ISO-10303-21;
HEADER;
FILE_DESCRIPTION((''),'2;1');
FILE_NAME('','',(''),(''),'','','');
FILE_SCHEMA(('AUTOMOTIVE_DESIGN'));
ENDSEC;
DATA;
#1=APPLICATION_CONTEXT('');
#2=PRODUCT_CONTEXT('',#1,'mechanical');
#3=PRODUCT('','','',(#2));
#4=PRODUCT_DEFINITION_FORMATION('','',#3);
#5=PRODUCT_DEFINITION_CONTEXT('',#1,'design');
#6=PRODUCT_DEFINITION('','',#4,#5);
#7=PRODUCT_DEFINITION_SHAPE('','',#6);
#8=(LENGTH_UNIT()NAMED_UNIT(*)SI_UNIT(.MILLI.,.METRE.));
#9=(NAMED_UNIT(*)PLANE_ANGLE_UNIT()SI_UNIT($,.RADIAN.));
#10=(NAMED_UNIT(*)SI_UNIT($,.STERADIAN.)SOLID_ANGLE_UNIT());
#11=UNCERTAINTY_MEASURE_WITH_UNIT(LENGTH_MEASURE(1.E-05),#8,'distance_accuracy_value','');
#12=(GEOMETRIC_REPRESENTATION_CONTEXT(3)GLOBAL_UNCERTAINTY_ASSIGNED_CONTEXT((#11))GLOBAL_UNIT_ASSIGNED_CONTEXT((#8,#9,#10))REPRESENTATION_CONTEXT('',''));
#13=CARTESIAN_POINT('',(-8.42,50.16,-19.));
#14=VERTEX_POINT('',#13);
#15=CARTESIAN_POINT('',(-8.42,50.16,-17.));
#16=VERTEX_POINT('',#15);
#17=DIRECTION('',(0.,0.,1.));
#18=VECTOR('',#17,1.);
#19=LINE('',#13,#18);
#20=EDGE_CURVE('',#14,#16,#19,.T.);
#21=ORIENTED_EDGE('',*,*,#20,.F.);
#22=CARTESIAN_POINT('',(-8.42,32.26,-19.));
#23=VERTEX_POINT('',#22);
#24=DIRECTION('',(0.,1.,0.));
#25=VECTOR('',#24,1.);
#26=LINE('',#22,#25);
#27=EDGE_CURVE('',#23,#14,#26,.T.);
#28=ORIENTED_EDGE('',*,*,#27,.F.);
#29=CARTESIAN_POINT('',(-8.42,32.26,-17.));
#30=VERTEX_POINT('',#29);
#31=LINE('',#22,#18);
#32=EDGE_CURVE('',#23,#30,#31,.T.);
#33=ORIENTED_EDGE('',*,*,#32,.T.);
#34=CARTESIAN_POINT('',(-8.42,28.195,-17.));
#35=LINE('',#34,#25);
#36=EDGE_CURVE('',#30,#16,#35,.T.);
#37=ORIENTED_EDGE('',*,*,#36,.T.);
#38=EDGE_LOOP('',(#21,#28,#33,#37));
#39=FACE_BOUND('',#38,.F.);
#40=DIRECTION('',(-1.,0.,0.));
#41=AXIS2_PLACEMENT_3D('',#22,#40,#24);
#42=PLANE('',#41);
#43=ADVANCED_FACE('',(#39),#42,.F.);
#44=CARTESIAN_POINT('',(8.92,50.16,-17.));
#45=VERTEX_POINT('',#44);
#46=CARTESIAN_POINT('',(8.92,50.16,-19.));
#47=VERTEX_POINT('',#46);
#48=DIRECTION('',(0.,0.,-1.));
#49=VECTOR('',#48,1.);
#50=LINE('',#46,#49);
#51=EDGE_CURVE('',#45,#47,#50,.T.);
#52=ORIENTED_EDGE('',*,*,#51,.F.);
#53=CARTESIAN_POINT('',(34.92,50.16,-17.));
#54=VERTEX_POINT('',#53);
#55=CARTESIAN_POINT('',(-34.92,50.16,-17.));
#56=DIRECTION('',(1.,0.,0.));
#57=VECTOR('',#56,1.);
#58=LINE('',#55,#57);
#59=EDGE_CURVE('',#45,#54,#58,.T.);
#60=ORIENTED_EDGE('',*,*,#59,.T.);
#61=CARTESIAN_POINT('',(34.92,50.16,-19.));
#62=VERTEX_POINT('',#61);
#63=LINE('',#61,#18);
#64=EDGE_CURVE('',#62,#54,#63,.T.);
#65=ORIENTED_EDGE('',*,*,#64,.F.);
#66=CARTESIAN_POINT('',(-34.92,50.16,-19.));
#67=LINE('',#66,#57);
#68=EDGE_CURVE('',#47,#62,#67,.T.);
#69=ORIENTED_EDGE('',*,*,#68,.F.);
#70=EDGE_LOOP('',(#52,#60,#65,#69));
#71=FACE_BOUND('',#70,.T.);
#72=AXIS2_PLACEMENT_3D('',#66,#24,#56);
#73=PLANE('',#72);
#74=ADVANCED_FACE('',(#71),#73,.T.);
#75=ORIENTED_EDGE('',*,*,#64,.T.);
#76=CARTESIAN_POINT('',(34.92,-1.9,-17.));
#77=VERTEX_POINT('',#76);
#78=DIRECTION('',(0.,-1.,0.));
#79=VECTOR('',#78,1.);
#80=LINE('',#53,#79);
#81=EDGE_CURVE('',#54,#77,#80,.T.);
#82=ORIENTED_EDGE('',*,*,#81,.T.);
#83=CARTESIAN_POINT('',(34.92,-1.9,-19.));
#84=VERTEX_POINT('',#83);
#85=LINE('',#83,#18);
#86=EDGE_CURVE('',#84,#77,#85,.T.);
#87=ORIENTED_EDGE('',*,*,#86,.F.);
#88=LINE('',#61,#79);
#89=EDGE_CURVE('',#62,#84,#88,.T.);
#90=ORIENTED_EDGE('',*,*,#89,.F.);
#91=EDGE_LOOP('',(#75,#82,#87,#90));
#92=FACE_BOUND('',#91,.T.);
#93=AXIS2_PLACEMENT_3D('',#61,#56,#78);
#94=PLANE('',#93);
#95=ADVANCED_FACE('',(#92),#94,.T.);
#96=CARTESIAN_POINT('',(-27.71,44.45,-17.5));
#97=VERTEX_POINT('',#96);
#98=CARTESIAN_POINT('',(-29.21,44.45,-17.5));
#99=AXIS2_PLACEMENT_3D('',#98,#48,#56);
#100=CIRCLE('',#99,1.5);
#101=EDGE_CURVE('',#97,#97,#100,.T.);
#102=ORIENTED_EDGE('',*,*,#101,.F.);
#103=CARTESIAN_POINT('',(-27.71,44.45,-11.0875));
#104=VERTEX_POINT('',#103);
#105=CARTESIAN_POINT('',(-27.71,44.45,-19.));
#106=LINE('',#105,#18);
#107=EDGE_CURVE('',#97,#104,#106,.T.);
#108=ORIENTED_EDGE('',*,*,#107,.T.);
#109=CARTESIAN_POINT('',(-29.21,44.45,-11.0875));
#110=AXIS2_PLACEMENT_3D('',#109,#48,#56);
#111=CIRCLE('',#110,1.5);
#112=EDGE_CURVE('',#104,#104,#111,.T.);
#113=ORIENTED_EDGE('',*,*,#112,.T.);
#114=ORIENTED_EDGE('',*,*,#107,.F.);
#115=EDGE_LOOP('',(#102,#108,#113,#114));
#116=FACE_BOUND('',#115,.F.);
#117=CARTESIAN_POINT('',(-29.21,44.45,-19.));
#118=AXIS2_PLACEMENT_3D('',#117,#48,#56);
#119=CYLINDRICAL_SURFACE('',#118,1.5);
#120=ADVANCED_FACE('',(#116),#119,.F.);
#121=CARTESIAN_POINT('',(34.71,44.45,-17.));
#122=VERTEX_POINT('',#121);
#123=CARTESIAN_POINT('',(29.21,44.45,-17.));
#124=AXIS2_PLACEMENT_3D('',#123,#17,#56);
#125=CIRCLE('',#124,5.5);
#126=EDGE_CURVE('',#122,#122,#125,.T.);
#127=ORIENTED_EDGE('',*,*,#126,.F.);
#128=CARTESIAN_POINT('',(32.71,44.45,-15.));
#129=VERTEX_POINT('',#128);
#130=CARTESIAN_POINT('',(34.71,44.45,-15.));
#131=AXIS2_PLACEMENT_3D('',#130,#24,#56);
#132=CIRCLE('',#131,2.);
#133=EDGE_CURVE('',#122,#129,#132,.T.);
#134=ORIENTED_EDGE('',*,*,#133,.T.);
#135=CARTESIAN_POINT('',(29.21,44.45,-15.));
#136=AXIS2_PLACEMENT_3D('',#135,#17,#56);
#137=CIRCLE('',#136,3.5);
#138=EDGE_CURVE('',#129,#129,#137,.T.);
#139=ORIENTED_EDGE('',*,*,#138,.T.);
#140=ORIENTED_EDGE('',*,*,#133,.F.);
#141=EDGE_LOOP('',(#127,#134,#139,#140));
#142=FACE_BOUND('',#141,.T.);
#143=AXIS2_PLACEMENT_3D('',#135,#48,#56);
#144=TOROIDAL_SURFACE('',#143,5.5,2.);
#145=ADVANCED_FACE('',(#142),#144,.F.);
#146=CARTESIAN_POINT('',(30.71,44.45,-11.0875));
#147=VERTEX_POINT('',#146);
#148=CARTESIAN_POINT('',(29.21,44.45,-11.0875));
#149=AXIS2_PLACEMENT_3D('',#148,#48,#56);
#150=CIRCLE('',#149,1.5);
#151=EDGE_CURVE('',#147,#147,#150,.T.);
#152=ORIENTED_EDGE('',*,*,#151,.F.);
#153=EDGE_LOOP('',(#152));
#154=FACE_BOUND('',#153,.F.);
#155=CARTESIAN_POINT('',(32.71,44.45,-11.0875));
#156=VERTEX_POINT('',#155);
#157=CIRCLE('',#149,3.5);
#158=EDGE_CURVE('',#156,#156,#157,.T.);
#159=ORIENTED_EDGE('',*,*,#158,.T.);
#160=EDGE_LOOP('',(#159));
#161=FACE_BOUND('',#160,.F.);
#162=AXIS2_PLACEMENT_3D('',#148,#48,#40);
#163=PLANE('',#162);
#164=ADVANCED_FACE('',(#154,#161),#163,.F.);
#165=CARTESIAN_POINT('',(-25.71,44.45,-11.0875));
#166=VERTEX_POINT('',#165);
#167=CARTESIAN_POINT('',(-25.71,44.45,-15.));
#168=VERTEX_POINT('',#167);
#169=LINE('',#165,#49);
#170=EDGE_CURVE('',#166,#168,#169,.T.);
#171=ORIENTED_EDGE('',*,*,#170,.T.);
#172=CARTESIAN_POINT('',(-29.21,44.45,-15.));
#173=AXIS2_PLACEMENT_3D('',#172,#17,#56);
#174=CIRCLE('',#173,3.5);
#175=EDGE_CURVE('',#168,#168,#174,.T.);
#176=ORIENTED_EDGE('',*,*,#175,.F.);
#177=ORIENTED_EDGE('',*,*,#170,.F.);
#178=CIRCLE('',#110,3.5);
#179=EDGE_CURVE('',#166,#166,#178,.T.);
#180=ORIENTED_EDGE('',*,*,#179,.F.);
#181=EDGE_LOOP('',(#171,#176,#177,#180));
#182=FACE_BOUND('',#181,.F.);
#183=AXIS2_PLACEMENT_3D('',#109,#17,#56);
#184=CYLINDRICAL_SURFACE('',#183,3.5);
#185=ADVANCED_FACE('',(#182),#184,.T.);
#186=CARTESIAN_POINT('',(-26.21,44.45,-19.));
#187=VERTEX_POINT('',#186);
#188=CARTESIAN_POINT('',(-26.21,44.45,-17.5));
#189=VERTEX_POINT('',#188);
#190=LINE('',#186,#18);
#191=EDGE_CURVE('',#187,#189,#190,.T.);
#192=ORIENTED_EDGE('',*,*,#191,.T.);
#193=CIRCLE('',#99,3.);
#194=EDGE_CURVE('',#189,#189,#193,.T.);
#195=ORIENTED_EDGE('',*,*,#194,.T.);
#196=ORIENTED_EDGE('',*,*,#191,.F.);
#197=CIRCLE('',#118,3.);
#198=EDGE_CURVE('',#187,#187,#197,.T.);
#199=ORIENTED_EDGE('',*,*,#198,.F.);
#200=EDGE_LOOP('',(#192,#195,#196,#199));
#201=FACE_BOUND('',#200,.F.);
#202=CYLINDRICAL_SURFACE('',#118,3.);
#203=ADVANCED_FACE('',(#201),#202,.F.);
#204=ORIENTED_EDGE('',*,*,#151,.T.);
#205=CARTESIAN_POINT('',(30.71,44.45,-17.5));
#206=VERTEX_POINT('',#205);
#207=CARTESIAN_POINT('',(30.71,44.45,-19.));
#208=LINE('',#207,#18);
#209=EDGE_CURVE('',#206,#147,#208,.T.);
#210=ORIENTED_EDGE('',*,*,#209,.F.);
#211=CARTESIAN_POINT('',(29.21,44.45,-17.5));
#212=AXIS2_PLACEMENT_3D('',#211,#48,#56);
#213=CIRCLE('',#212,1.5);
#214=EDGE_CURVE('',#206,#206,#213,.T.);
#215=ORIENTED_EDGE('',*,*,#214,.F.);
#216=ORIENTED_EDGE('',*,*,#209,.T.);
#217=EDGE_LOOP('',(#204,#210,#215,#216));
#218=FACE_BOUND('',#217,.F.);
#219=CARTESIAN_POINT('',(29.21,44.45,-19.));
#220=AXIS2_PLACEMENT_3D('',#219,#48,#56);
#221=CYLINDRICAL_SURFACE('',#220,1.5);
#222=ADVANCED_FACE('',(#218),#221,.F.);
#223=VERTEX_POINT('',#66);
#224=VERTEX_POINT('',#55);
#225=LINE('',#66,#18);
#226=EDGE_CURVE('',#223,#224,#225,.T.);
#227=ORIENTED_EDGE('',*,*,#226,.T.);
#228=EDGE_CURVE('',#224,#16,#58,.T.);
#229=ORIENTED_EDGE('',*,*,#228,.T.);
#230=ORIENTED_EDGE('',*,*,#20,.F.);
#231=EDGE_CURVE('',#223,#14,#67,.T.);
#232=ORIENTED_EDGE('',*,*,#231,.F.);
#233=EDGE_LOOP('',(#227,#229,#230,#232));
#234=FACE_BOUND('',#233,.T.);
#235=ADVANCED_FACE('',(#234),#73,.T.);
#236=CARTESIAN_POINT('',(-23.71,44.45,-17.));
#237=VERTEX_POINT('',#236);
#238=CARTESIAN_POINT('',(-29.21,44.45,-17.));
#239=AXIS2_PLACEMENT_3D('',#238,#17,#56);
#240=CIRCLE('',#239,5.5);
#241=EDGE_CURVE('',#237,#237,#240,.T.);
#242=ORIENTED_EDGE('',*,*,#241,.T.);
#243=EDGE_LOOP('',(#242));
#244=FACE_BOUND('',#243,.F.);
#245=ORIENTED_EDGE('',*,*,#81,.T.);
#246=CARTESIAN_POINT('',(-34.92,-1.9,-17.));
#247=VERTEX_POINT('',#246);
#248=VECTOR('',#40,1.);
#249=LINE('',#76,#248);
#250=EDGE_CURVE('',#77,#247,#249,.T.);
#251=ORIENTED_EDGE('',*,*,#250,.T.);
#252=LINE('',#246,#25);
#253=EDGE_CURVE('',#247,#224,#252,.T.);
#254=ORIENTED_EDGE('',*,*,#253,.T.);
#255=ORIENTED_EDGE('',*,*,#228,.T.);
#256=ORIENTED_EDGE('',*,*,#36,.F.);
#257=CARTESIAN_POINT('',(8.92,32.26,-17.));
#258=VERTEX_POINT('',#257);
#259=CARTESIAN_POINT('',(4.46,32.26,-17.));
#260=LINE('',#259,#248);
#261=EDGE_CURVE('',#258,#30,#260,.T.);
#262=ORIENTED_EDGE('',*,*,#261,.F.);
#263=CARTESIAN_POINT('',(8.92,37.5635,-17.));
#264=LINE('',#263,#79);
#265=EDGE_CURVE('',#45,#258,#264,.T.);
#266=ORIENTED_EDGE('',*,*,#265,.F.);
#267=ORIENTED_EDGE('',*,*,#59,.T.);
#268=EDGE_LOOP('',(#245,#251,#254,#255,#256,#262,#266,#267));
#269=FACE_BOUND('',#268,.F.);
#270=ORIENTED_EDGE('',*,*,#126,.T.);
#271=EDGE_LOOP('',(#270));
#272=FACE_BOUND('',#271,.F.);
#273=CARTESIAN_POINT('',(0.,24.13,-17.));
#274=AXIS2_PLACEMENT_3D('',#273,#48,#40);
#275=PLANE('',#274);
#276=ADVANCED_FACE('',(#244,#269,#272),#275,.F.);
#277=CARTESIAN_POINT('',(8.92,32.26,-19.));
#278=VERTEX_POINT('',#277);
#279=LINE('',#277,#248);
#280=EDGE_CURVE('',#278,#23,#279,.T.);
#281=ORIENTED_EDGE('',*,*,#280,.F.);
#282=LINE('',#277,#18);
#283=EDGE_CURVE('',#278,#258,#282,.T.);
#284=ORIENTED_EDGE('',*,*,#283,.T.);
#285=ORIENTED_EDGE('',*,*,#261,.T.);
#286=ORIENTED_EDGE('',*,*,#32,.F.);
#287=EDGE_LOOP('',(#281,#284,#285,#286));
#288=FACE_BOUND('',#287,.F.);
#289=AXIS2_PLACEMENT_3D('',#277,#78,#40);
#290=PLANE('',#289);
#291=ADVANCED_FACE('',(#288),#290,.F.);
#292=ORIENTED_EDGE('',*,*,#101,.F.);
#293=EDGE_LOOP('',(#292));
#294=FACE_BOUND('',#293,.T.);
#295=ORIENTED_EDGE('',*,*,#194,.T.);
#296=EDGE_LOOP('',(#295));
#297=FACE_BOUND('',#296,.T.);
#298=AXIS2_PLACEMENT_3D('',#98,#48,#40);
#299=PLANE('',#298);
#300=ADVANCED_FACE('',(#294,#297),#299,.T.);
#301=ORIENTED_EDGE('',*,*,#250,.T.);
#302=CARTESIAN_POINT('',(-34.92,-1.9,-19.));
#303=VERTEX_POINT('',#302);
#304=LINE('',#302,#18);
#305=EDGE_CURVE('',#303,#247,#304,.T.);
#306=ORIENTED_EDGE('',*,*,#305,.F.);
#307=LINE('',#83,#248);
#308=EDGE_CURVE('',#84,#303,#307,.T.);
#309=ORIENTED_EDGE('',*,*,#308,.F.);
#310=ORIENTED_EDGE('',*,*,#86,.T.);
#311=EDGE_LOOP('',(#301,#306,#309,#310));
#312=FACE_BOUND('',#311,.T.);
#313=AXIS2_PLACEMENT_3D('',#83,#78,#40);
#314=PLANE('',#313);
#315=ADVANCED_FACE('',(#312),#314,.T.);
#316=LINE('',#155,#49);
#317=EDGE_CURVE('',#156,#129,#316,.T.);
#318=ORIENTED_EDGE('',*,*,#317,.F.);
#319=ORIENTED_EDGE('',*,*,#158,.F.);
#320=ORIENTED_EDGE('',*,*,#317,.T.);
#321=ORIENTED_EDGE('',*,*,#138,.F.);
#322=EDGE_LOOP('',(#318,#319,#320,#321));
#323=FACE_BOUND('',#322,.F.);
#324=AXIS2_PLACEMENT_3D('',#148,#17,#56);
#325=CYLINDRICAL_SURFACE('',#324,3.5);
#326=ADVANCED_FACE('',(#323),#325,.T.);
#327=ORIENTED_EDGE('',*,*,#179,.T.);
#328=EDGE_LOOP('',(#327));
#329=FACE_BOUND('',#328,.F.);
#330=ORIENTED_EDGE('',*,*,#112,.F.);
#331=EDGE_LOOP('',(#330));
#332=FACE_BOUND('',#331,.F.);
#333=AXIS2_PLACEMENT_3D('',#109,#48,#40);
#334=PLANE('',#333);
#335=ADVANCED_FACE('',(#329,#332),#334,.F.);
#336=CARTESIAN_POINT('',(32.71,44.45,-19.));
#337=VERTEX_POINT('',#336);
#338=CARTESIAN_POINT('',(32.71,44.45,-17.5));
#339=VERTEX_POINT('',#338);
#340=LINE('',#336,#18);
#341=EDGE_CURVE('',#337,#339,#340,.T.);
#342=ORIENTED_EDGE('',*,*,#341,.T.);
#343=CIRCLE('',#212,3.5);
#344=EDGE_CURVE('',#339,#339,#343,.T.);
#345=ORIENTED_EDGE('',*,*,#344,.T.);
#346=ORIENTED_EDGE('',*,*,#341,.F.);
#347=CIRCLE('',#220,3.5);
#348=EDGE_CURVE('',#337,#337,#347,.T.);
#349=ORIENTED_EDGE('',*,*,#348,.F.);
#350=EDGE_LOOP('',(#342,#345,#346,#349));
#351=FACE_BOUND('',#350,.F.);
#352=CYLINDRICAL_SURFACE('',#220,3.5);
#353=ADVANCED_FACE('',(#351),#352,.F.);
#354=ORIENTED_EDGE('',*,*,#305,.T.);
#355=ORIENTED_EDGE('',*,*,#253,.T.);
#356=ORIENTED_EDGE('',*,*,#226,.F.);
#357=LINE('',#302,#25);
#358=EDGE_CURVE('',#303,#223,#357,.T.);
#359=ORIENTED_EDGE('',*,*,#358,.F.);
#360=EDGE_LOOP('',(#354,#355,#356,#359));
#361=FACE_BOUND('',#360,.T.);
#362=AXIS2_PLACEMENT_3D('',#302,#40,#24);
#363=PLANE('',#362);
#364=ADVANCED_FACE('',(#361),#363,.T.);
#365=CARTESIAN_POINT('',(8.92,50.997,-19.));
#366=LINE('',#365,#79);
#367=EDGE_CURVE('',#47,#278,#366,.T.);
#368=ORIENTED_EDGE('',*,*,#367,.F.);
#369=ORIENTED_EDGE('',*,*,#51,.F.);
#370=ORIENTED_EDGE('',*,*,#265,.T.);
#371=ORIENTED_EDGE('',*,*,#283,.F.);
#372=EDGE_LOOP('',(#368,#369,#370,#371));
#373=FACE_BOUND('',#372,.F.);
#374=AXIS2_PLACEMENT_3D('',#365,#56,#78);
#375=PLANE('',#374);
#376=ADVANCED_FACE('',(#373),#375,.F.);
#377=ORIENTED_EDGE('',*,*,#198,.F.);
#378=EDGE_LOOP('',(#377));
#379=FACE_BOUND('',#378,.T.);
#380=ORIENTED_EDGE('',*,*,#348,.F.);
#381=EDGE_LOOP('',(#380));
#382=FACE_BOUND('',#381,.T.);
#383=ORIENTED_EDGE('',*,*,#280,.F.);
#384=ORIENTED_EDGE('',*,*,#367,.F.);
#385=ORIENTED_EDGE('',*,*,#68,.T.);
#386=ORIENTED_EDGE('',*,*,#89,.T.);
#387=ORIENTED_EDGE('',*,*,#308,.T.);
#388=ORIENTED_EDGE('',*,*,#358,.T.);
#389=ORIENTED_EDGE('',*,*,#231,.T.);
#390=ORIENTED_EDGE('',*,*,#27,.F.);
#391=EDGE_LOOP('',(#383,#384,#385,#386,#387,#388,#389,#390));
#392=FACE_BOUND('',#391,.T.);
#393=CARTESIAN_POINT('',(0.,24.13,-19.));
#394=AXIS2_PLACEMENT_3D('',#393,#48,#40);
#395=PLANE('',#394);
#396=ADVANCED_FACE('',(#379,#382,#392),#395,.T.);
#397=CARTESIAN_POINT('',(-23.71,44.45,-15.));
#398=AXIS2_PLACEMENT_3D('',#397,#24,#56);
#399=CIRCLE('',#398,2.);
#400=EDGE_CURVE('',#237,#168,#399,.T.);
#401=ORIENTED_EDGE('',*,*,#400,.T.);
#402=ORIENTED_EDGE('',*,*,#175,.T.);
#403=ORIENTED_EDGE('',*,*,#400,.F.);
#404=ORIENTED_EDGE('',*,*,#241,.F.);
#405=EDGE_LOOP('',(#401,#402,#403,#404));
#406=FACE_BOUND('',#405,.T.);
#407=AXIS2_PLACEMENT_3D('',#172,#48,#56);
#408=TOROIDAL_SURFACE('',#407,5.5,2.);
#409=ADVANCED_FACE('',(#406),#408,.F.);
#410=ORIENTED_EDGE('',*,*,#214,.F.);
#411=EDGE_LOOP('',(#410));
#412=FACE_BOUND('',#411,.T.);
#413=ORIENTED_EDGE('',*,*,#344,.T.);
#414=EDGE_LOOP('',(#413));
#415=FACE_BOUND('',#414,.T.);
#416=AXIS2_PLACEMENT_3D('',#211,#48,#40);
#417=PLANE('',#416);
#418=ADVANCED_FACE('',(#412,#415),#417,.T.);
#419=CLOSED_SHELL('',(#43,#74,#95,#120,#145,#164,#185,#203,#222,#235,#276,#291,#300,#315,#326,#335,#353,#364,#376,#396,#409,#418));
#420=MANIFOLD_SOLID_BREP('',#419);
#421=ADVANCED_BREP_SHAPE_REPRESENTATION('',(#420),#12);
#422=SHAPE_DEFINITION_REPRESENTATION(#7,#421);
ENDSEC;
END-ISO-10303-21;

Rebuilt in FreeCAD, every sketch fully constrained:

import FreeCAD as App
import Part
import Sketcher

V = App.Vector
Q = App.Units.Quantity


def edges_at(feature, points):
    """Names of the edges that pass closest to the given points."""
    edges = feature.Shape.Edges
    near = lambda p: min(range(len(edges)), key=lambda i: edges[i].distToShape(Part.Vertex(*p))[0])
    return sorted({f"Edge{near(p) + 1}" for p in points})


def add_polygon(sketch, points):
    """Adds a closed chain of lines whose ends are joined by coincident constraints."""
    first, n = sketch.GeometryCount, len(points)
    for a, b in zip(points, points[1:] + points[:1]):
        sketch.addGeometry(Part.LineSegment(App.Vector(*a, 0), App.Vector(*b, 0)), False)
    for i in range(n):
        sketch.addConstraint(Sketcher.Constraint("Coincident", first + i, 2, first + (i + 1) % n, 1))

doc = App.newDocument("Part")
body = doc.addObject("PartDesign::Body", "Body")

sketch1 = body.newObject("Sketcher::SketchObject", "Sketch")
sketch1.AttachmentSupport = (doc.getObject("XY_Plane"), [""])
sketch1.MapMode = "FlatFace"
sketch1.AttachmentOffset = App.Placement(V(0, 0, -19), App.Rotation())
add_polygon(sketch1, [(-34.92, -1.9), (-34.92, 50.16), (34.92, 50.16), (34.92, -1.9)])
sketch1.addConstraint([
    Sketcher.Constraint("Vertical", 0),
    Sketcher.Constraint("Horizontal", 1),
    Sketcher.Constraint("Vertical", 2),
    Sketcher.Constraint("Horizontal", 3),
    Sketcher.Constraint("DistanceX", 1, 1, 1, 2, Q("69.84 mm")),
    Sketcher.Constraint("DistanceY", 0, 1, 0, 2, Q("52.06 mm")),
    Sketcher.Constraint("DistanceY", 2, 2, -1, 1, Q("1.9 mm")),
    Sketcher.Constraint("DistanceX", 0, 2, -1, 1, Q("34.92 mm")),
])
pad1 = body.newObject("PartDesign::Pad", "Pad")
pad1.Profile = sketch1
pad1.Length = 2

sketch2 = body.newObject("Sketcher::SketchObject", "Sketch001")
sketch2.AttachmentSupport = (doc.getObject("XY_Plane"), [""])
sketch2.MapMode = "FlatFace"
sketch2.AttachmentOffset = App.Placement(V(0, 0, -11.0875), App.Rotation())
sketch2.addGeometry([
    Part.Circle(V(-29.21, 44.45, 0), V(0, 0, 1), 3.5),
    Part.Circle(V(29.21, 44.45, 0), V(0, 0, 1), 3.5),
], False)
sketch2.addConstraint([
    Sketcher.Constraint("Equal", 0, 1),
    Sketcher.Constraint("Symmetric", 0, 3, 1, 3, -2),
    Sketcher.Constraint("Diameter", 0, Q("7 mm")),
    Sketcher.Constraint("DistanceX", 0, 3, -1, 1, Q("29.21 mm")),
    Sketcher.Constraint("DistanceY", -1, 1, 0, 3, Q("44.45 mm")),
])
pad2 = body.newObject("PartDesign::Pad", "Pad001")
pad2.Profile = sketch2
pad2.Type = "UpToFirst"
pad2.Reversed = True

sketch3 = body.newObject("Sketcher::SketchObject", "Sketch002")
sketch3.AttachmentSupport = (doc.getObject("XY_Plane"), [""])
sketch3.MapMode = "FlatFace"
sketch3.AttachmentOffset = App.Placement(V(0, 0, -19), App.Rotation())
sketch3.addGeometry([
    Part.Circle(V(-29.21, 44.45, 0), V(0, 0, 1), 1.5),
    Part.Circle(V(29.21, 44.45, 0), V(0, 0, 1), 1.5),
], False)
sketch3.addConstraint([
    Sketcher.Constraint("Equal", 0, 1),
    Sketcher.Constraint("Symmetric", 0, 3, 1, 3, -2),
    Sketcher.Constraint("Diameter", 0, Q("3 mm")),
    Sketcher.Constraint("DistanceX", 0, 3, -1, 1, Q("29.21 mm")),
    Sketcher.Constraint("DistanceY", -1, 1, 0, 3, Q("44.45 mm")),
])
pocket1 = body.newObject("PartDesign::Pocket", "Pocket")
pocket1.Profile = sketch3
pocket1.Length = 7.9125
pocket1.Reversed = True

sketch4 = body.newObject("Sketcher::SketchObject", "Sketch003")
sketch4.AttachmentSupport = (doc.getObject("XY_Plane"), [""])
sketch4.MapMode = "FlatFace"
sketch4.AttachmentOffset = App.Placement(V(0, 0, -19), App.Rotation())
sketch4.addGeometry([
    Part.Circle(V(-29.21, 44.45, 0), V(0, 0, 1), 3),
    Part.Circle(V(29.21, 44.45, 0), V(0, 0, 1), 3.5),
], False)
sketch4.addConstraint([
    Sketcher.Constraint("Symmetric", 0, 3, 1, 3, -2),
    Sketcher.Constraint("Diameter", 0, Q("6 mm")),
    Sketcher.Constraint("Diameter", 1, Q("7 mm")),
    Sketcher.Constraint("DistanceX", 0, 3, -1, 1, Q("29.21 mm")),
    Sketcher.Constraint("DistanceY", -1, 1, 0, 3, Q("44.45 mm")),
])
pocket2 = body.newObject("PartDesign::Pocket", "Pocket001")
pocket2.Profile = sketch4
pocket2.Length = 1.5
pocket2.Reversed = True

sketch5 = body.newObject("Sketcher::SketchObject", "Sketch004")
sketch5.AttachmentSupport = (doc.getObject("XY_Plane"), [""])
sketch5.MapMode = "FlatFace"
sketch5.AttachmentOffset = App.Placement(V(0, 0, -19), App.Rotation())
add_polygon(sketch5, [(-8.42, 32.26), (-8.42, 50.997), (8.92, 50.997), (8.92, 32.26)])
sketch5.addConstraint([
    Sketcher.Constraint("Vertical", 0),
    Sketcher.Constraint("Horizontal", 1),
    Sketcher.Constraint("Vertical", 2),
    Sketcher.Constraint("Horizontal", 3),
    Sketcher.Constraint("DistanceX", 1, 1, 1, 2, Q("17.34 mm")),
    Sketcher.Constraint("DistanceY", 0, 1, 0, 2, Q("18.737 mm")),
    Sketcher.Constraint("DistanceX", 0, 2, -1, 1, Q("8.42 mm")),
    Sketcher.Constraint("DistanceY", -1, 1, 2, 2, Q("32.26 mm")),
])
pocket3 = body.newObject("PartDesign::Pocket", "Pocket002")
pocket3.Profile = sketch5
pocket3.Type = "ThroughAll"
pocket3.Reversed = True
doc.recompute()

fillet = body.newObject("PartDesign::Fillet", "Fillet")
fillet.Base = (pocket3, edges_at(pocket3, [(32.71, 44.45, -17), (-25.71, 44.45, -17)]))
fillet.Radius = 2

doc.recompute()
